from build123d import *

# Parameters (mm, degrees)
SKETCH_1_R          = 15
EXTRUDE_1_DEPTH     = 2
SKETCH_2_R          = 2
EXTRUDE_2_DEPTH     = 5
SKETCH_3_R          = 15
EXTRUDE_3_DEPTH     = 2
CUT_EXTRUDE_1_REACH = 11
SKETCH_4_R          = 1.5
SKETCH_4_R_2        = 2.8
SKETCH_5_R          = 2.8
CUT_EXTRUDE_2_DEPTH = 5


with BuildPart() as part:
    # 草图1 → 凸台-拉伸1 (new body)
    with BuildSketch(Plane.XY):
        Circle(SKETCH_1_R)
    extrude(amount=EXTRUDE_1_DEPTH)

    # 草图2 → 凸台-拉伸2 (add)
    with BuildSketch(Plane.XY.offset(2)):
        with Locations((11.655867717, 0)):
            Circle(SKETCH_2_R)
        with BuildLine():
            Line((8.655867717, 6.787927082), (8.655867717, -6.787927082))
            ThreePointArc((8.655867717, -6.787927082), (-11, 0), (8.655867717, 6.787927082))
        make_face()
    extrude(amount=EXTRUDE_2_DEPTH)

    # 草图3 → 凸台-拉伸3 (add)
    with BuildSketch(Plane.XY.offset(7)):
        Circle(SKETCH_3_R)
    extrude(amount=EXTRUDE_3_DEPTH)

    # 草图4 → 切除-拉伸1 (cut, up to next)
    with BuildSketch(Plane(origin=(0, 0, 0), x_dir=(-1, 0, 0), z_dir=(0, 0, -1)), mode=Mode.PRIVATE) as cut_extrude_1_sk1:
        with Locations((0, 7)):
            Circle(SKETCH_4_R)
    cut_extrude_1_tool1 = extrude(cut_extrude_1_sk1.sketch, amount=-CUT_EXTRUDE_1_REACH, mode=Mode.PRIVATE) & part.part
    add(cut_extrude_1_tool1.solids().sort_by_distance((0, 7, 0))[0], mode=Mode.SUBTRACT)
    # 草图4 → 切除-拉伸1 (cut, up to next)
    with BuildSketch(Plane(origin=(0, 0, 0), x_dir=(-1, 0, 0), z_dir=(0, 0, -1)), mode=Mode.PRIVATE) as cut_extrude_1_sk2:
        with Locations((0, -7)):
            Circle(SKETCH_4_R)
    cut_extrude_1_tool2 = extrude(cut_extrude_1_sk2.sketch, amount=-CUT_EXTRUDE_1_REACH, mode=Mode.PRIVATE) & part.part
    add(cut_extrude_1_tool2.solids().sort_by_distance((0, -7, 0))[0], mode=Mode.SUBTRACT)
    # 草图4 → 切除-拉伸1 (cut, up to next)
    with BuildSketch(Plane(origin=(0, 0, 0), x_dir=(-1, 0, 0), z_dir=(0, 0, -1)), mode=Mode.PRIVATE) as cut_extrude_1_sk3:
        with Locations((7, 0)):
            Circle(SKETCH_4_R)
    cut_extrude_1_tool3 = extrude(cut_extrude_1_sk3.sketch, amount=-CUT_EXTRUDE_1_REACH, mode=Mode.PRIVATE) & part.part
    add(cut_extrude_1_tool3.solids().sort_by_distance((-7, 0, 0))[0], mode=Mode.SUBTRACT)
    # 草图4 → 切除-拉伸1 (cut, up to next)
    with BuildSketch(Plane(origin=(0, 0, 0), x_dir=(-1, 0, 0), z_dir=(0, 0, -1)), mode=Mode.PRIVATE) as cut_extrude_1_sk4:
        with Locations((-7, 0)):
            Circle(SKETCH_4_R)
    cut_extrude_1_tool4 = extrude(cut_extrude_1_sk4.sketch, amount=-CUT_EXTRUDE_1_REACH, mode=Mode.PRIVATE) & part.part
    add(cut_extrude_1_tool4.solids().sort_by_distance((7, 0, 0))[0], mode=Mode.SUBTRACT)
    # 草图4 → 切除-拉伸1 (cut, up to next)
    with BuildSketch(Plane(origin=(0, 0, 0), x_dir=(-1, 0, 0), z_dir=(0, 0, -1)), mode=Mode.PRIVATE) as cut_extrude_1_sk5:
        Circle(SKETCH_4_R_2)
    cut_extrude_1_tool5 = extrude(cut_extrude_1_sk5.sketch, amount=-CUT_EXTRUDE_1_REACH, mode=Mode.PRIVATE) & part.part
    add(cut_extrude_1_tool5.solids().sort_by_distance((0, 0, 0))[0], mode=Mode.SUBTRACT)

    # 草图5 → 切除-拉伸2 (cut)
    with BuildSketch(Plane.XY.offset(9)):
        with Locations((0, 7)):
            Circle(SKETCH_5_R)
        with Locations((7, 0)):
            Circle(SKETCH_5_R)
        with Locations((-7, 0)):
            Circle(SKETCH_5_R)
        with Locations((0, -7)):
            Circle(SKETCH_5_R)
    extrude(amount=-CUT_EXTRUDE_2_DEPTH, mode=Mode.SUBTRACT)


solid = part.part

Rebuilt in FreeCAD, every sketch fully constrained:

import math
import FreeCAD as App
import Part
import Sketcher
from FreeCAD import Vector
Q = App.Units.Quantity

doc = App.newDocument("Part")
params = doc.addObject("Spreadsheet::Sheet", "Params")
for row, (alias, value) in enumerate([
    ("sketch1_diameter", "30 mm"),
    ("pad1_length", "2 mm"),
    ("sketch2_diameter", "4 mm"),
    ("sketch2_radius", "11 mm"),
    ("pad2_length", "5 mm"),
    ("sketch3_diameter", "30 mm"),
    ("pad3_length", "2 mm"),
    ("sketch4_diameter", "3 mm"),
    ("sketch5_diameter", "3 mm"),
    ("sketch6_diameter", "3 mm"),
    ("sketch7_diameter", "3 mm"),
    ("sketch8_diameter", "5.6 mm"),
    ("sketch9_diameter", "5.6 mm"),
    ("pocket6_length", "5 mm"),
], start=1):
    params.set(f"A{row}", alias)
    params.set(f"B{row}", "=" + value)
    params.setAlias(f"B{row}", alias)

body = doc.addObject("PartDesign::Body", "Body")

sketch1 = body.newObject("Sketcher::SketchObject", "Sketch")
sketch1.AttachmentSupport = (doc.getObject("XY_Plane"), [""])
sketch1.MapMode = "FlatFace"
sketch1.addGeometry(Part.Circle(Vector(0, 0, 0), Vector(0, 0, 1), 15), False)
sketch1.addConstraint(Sketcher.Constraint("Coincident", 0, 3, -1, 1))
sketch1.addConstraint(Sketcher.Constraint("Diameter", 0, Q("30 mm")))
sketch1.setExpression("Constraints[1]", "Params.sketch1_diameter")
pad1 = body.newObject("PartDesign::Pad", "Pad")
pad1.Profile = sketch1
pad1.setExpression("Length", "Params.pad1_length")

sketch2 = body.newObject("Sketcher::SketchObject", "Sketch001")
sketch2.AttachmentSupport = (doc.getObject("XY_Plane"), [""])
sketch2.MapMode = "FlatFace"
sketch2.AttachmentOffset = App.Placement(Vector(0, 0, 2), App.Rotation())
sketch2.addGeometry(Part.Circle(Vector(11.7, 0, 0), Vector(0, 0, 1), 2), False)
sketch2.addGeometry(Part.LineSegment(Vector(8.7, -6.8, 0), Vector(8.7, 6.8, 0)), False)
sketch2.addGeometry(Part.ArcOfCircle(Part.Circle(Vector(0, 0, 0), Vector(0, 0, 1), 11), math.radians(38), math.radians(322)), False)
sketch2.addConstraint(Sketcher.Constraint("Coincident", 1, 1, 2, 2))
sketch2.addConstraint(Sketcher.Constraint("Coincident", 2, 1, 1, 2))
sketch2.addConstraint(Sketcher.Constraint("Vertical", 1))
sketch2.addConstraint(Sketcher.Constraint("Coincident", 2, 3, -1, 1))
sketch2.addConstraint(Sketcher.Constraint("PointOnObject", 0, 3, -1))
sketch2.addConstraint(Sketcher.Constraint("Diameter", 0, Q("4 mm")))
sketch2.addConstraint(Sketcher.Constraint("Radius", 2, Q("11 mm")))
sketch2.addConstraint(Sketcher.Constraint("DistanceX", 1, 1, 0, 3, Q("3 mm")))
sketch2.addConstraint(Sketcher.Constraint("DistanceY", 1, 1, 1, 2, Q("13.575854 mm")))
sketch2.setExpression("Constraints[5]", "Params.sketch2_diameter")
sketch2.setExpression("Constraints[6]", "Params.sketch2_radius")
pad2 = body.newObject("PartDesign::Pad", "Pad001")
pad2.Profile = sketch2
pad2.setExpression("Length", "Params.pad2_length")

sketch3 = body.newObject("Sketcher::SketchObject", "Sketch002")
sketch3.AttachmentSupport = (doc.getObject("XY_Plane"), [""])
sketch3.MapMode = "FlatFace"
sketch3.AttachmentOffset = App.Placement(Vector(0, 0, 7), App.Rotation())
sketch3.addGeometry(Part.Circle(Vector(0, 0, 0), Vector(0, 0, 1), 15), False)
sketch3.addConstraint(Sketcher.Constraint("Coincident", 0, 3, -1, 1))
sketch3.addConstraint(Sketcher.Constraint("Diameter", 0, Q("30 mm")))
sketch3.setExpression("Constraints[1]", "Params.sketch3_diameter")
pad3 = body.newObject("PartDesign::Pad", "Pad002")
pad3.Profile = sketch3
pad3.setExpression("Length", "Params.pad3_length")

sketch4 = body.newObject("Sketcher::SketchObject", "Sketch003")
sketch4.AttachmentSupport = (doc.getObject("XY_Plane"), [""])
sketch4.MapMode = "FlatFace"
sketch4.addGeometry(Part.Circle(Vector(0, 7, 0), Vector(0, 0, 1), 1.5), False)
sketch4.addConstraint(Sketcher.Constraint("PointOnObject", 0, 3, -2))
sketch4.addConstraint(Sketcher.Constraint("Diameter", 0, Q("3 mm")))
sketch4.addConstraint(Sketcher.Constraint("DistanceY", -1, 1, 0, 3, Q("7 mm")))
sketch4.setExpression("Constraints[1]", "Params.sketch4_diameter")
pocket1 = body.newObject("PartDesign::Pocket", "Pocket")
pocket1.Profile = sketch4
pocket1.Type = "UpToFirst"
pocket1.Reversed = True

sketch5 = body.newObject("Sketcher::SketchObject", "Sketch004")
sketch5.AttachmentSupport = (doc.getObject("XY_Plane"), [""])
sketch5.MapMode = "FlatFace"
sketch5.addGeometry(Part.Circle(Vector(0, -7, 0), Vector(0, 0, 1), 1.5), False)
sketch5.addConstraint(Sketcher.Constraint("PointOnObject", 0, 3, -2))
sketch5.addConstraint(Sketcher.Constraint("Diameter", 0, Q("3 mm")))
sketch5.addConstraint(Sketcher.Constraint("DistanceY", 0, 3, -1, 1, Q("7 mm")))
sketch5.setExpression("Constraints[1]", "Params.sketch5_diameter")
pocket2 = body.newObject("PartDesign::Pocket", "Pocket001")
pocket2.Profile = sketch5
pocket2.Type = "UpToFirst"
pocket2.Reversed = True

sketch6 = body.newObject("Sketcher::SketchObject", "Sketch005")
sketch6.AttachmentSupport = (doc.getObject("XY_Plane"), [""])
sketch6.MapMode = "FlatFace"
sketch6.addGeometry(Part.Circle(Vector(-7, 0, 0), Vector(0, 0, 1), 1.5), False)
sketch6.addConstraint(Sketcher.Constraint("PointOnObject", 0, 3, -1))
sketch6.addConstraint(Sketcher.Constraint("Diameter", 0, Q("3 mm")))
sketch6.addConstraint(Sketcher.Constraint("DistanceX", 0, 3, -1, 1, Q("7 mm")))
sketch6.setExpression("Constraints[1]", "Params.sketch6_diameter")
pocket3 = body.newObject("PartDesign::Pocket", "Pocket002")
pocket3.Profile = sketch6
pocket3.Type = "UpToFirst"
pocket3.Reversed = True

sketch7 = body.newObject("Sketcher::SketchObject", "Sketch006")
sketch7.AttachmentSupport = (doc.getObject("XY_Plane"), [""])
sketch7.MapMode = "FlatFace"
sketch7.addGeometry(Part.Circle(Vector(7, 0, 0), Vector(0, 0, 1), 1.5), False)
sketch7.addConstraint(Sketcher.Constraint("PointOnObject", 0, 3, -1))
sketch7.addConstraint(Sketcher.Constraint("Diameter", 0, Q("3 mm")))
sketch7.addConstraint(Sketcher.Constraint("DistanceX", -1, 1, 0, 3, Q("7 mm")))
sketch7.setExpression("Constraints[1]", "Params.sketch7_diameter")
pocket4 = body.newObject("PartDesign::Pocket", "Pocket003")
pocket4.Profile = sketch7
pocket4.Type = "UpToFirst"
pocket4.Reversed = True

sketch8 = body.newObject("Sketcher::SketchObject", "Sketch007")
sketch8.AttachmentSupport = (doc.getObject("XY_Plane"), [""])
sketch8.MapMode = "FlatFace"
sketch8.addGeometry(Part.Circle(Vector(0, 0, 0), Vector(0, 0, 1), 2.8), False)
sketch8.addConstraint(Sketcher.Constraint("Coincident", 0, 3, -1, 1))
sketch8.addConstraint(Sketcher.Constraint("Diameter", 0, Q("5.6 mm")))
sketch8.setExpression("Constraints[1]", "Params.sketch8_diameter")
pocket5 = body.newObject("PartDesign::Pocket", "Pocket004")
pocket5.Profile = sketch8
pocket5.Type = "UpToFirst"
pocket5.Reversed = True

sketch9 = body.newObject("Sketcher::SketchObject", "Sketch008")
sketch9.AttachmentSupport = (doc.getObject("XY_Plane"), [""])
sketch9.MapMode = "FlatFace"
sketch9.AttachmentOffset = App.Placement(Vector(0, 0, 9), App.Rotation())
sketch9.addGeometry(Part.Circle(Vector(0, 7, 0), Vector(0, 0, 1), 2.8), False)
sketch9.addGeometry(Part.Circle(Vector(7, 0, 0), Vector(0, 0, 1), 2.8), False)
sketch9.addGeometry(Part.Circle(Vector(-7, 0, 0), Vector(0, 0, 1), 2.8), False)
sketch9.addGeometry(Part.Circle(Vector(0, -7, 0), Vector(0, 0, 1), 2.8), False)
sketch9.addConstraint(Sketcher.Constraint("Equal", 0, 1))
sketch9.addConstraint(Sketcher.Constraint("Equal", 1, 2))
sketch9.addConstraint(Sketcher.Constraint("Equal", 2, 3))
sketch9.addConstraint(Sketcher.Constraint("Symmetric", 1, 3, 2, 3, -1, 1))
sketch9.addConstraint(Sketcher.Constraint("Symmetric", 0, 3, 3, 3, -1, 1))
sketch9.addConstraint(Sketcher.Constraint("PointOnObject", 0, 3, -2))
sketch9.addConstraint(Sketcher.Constraint("PointOnObject", 1, 3, -1))
sketch9.addConstraint(Sketcher.Constraint("Diameter", 0, Q("5.6 mm")))
sketch9.addConstraint(Sketcher.Constraint("DistanceY", -1, 1, 0, 3, Q("7 mm")))
sketch9.addConstraint(Sketcher.Constraint("DistanceX", -1, 1, 1, 3, Q("7 mm")))
sketch9.setExpression("Constraints[7]", "Params.sketch9_diameter")
pocket6 = body.newObject("PartDesign::Pocket", "Pocket005")
pocket6.Profile = sketch9
pocket6.setExpression("Length", "Params.pocket6_length")

doc.recompute()
